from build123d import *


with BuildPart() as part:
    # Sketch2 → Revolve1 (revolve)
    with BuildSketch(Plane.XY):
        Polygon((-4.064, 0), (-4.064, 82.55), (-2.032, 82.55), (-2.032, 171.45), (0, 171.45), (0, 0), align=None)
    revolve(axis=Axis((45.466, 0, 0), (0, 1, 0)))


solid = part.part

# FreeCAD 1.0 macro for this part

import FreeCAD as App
import Part
import Sketcher
from FreeCAD import Vector
Q = App.Units.Quantity

doc = App.newDocument("Part")
params = doc.addObject("Spreadsheet::Sheet", "Params")
for row, (alias, value) in enumerate([
    ("sketch1_height", "3.5 in"),
    ("sketch1_width", "0.16 in"),
    ("sketch1_height2", "3.25 in"),
    ("revolution_angle", "360 deg"),
], start=1):
    params.set(f"A{row}", alias)
    params.set(f"B{row}", "=" + value)
    params.setAlias(f"B{row}", alias)

body = doc.addObject("PartDesign::Body", "Body")

# Sketch on XY plane
sketch1 = body.newObject("Sketcher::SketchObject", "Sketch")
sketch1.AttachmentSupport = (doc.getObject("XY_Plane"), [""])
sketch1.MapMode = "FlatFace"
sketch1.addGeometry([
    Part.LineSegment(Vector(-4.1, 82.5, 0), Vector(-4.1, 0, 0)),  # 0
    Part.LineSegment(Vector(-4.1, 0, 0), Vector(0, 0, 0)),  # 1
    Part.LineSegment(Vector(0, 0, 0), Vector(0, 171.4, 0)),  # 2
    Part.LineSegment(Vector(0, 171.4, 0), Vector(-2, 171.4, 0)),  # 3
    Part.LineSegment(Vector(-2, 171.4, 0), Vector(-2, 82.5, 0)),  # 4
    Part.LineSegment(Vector(-2, 82.5, 0), Vector(-4.1, 82.5, 0)),  # 5
], False)
sketch1.addGeometry(Part.LineSegment(Vector(45.5, 0, 0), Vector(45.5, 171.4, 0)), True)  # axis
sketch1.addConstraint([
    Sketcher.Constraint("Coincident", 0, 2, 1, 1),
    Sketcher.Constraint("Coincident", 1, 2, 2, 1),
    Sketcher.Constraint("Coincident", 2, 2, 3, 1),
    Sketcher.Constraint("Coincident", 3, 2, 4, 1),
    Sketcher.Constraint("Coincident", 4, 2, 5, 1),
    Sketcher.Constraint("Coincident", 5, 2, 0, 1),
    Sketcher.Constraint("Vertical", 0),
    Sketcher.Constraint("Horizontal", 1),
    Sketcher.Constraint("Vertical", 2),
    Sketcher.Constraint("Horizontal", 3),
    Sketcher.Constraint("Vertical", 4),
    Sketcher.Constraint("Horizontal", 5),
    Sketcher.Constraint("Vertical", 6),
    Sketcher.Constraint("Coincident", 1, 2, -1, 1),
    Sketcher.Constraint("PointOnObject", 6, 1, -1),
    Sketcher.Constraint("Horizontal", 3, 2, 6, 2),
    Sketcher.Constraint("Equal", 3, 5),
    Sketcher.Constraint("DistanceY", 4, 2, 4, 1, Q("3.5 in")),
    Sketcher.Constraint("DistanceX", 1, 1, 1, 2, Q("0.16 in")),
    Sketcher.Constraint("DistanceY", 0, 2, 0, 1, Q("3.25 in")),
    Sketcher.Constraint("DistanceX", -1, 1, 6, 1, Q("1.79 in")),
])
sketch1.setExpression("Constraints[17]", "Params.sketch1_height")
sketch1.setExpression("Constraints[18]", "Params.sketch1_width")
sketch1.setExpression("Constraints[19]", "Params.sketch1_height2")
revolution = body.newObject("PartDesign::Revolution", "Revolution")
revolution.Profile = sketch1
revolution.ReferenceAxis = (sketch1, ["Axis0"])
revolution.setExpression("Angle", "Params.revolution_angle")

doc.recompute()
